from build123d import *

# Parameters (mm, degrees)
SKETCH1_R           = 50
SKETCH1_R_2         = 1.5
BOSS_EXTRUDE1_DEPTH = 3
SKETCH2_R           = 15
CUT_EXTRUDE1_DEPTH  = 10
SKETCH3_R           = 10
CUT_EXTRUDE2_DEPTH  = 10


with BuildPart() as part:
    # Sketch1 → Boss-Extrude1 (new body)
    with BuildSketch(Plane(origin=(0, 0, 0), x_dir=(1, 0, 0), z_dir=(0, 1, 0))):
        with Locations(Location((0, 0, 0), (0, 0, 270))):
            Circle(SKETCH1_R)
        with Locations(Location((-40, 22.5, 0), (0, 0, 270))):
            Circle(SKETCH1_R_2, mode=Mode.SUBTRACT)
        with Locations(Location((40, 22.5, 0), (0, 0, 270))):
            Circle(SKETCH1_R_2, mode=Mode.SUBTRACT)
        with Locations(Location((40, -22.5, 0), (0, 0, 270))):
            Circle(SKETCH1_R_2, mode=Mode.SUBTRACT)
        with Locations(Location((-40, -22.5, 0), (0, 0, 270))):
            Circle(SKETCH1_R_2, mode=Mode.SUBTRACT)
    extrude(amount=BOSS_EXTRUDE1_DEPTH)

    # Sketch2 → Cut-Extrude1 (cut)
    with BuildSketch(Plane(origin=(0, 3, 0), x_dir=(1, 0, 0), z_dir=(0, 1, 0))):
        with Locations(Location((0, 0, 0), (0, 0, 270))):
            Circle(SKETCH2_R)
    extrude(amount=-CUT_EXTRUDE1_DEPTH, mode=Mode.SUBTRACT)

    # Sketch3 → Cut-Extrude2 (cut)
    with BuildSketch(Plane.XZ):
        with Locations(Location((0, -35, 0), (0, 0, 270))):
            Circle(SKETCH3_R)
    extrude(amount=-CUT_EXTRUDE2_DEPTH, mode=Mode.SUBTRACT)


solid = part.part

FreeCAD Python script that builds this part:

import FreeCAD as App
import Part
import Sketcher

V = App.Vector
Q = App.Units.Quantity

doc = App.newDocument("Part")
params = doc.addObject("Spreadsheet::Sheet", "Params")
for row, (alias, value) in enumerate([
    ("sketch1_diameter", "100 mm"),
    ("sketch1_diameter2", "3 mm"),
    ("pad1_length", "3 mm"),
    ("sketch2_diameter", "30 mm"),
    ("pocket1_length", "10 mm"),
    ("sketch3_diameter", "20 mm"),
    ("pocket2_length", "10 mm"),
], start=1):
    params.set(f"A{row}", alias)
    params.set(f"B{row}", "=" + value)
    params.setAlias(f"B{row}", alias)

body = doc.addObject("PartDesign::Body", "Body")

# Sketch on XZ plane
sketch1 = body.newObject("Sketcher::SketchObject", "Sketch")
sketch1.AttachmentSupport = (doc.getObject("XZ_Plane"), [""])
sketch1.MapMode = "FlatFace"
sketch1.addGeometry(Part.Circle(V(0, 0, 0), V(0, 0, 1), 50), False)
sketch1.addGeometry(Part.Circle(V(-40, -22.5, 0), V(0, 0, 1), 1.5), False)
sketch1.addGeometry(Part.Circle(V(-40, 22.5, 0), V(0, 0, 1), 1.5), False)
sketch1.addGeometry(Part.Circle(V(40, -22.5, 0), V(0, 0, 1), 1.5), False)
sketch1.addGeometry(Part.Circle(V(40, 22.5, 0), V(0, 0, 1), 1.5), False)
sketch1.addConstraint(Sketcher.Constraint("Coincident", 0, 3, -1, 1))
sketch1.addConstraint(Sketcher.Constraint("Equal", 1, 2))
sketch1.addConstraint(Sketcher.Constraint("Equal", 2, 3))
sketch1.addConstraint(Sketcher.Constraint("Equal", 3, 4))
sketch1.addConstraint(Sketcher.Constraint("Symmetric", 2, 3, 3, 3, -1, 1))
sketch1.addConstraint(Sketcher.Constraint("Symmetric", 1, 3, 4, 3, -1, 1))
sketch1.addConstraint(Sketcher.Constraint("Symmetric", 1, 3, 3, 3, -2))
sketch1.addConstraint(Sketcher.Constraint("Diameter", 0, Q("100 mm")))
sketch1.addConstraint(Sketcher.Constraint("Diameter", 1, Q("3 mm")))
sketch1.addConstraint(Sketcher.Constraint("DistanceX", 1, 3, -1, 1, Q("40 mm")))
sketch1.addConstraint(Sketcher.Constraint("DistanceY", 1, 3, 2, 3, Q("45 mm")))
sketch1.setExpression("Constraints[7]", "Params.sketch1_diameter")
sketch1.setExpression("Constraints[8]", "Params.sketch1_diameter2")
pad1 = body.newObject("PartDesign::Pad", "Pad")
pad1.Profile = sketch1
pad1.setExpression("Length", "Params.pad1_length")
pad1.Reversed = True

# Sketch on XZ plane
sketch2 = body.newObject("Sketcher::SketchObject", "Sketch001")
sketch2.AttachmentSupport = (doc.getObject("XZ_Plane"), [""])
sketch2.MapMode = "FlatFace"
sketch2.AttachmentOffset = App.Placement(V(0, 0, -3), App.Rotation())
sketch2.addGeometry(Part.Circle(V(0, 0, 0), V(0, 0, 1), 15), False)
sketch2.addConstraint(Sketcher.Constraint("Coincident", 0, 3, -1, 1))
sketch2.addConstraint(Sketcher.Constraint("Diameter", 0, Q("30 mm")))
sketch2.setExpression("Constraints[1]", "Params.sketch2_diameter")
pocket1 = body.newObject("PartDesign::Pocket", "Pocket")
pocket1.Profile = sketch2
pocket1.setExpression("Length", "Params.pocket1_length")
pocket1.Reversed = True

# Sketch on XZ plane
sketch3 = body.newObject("Sketcher::SketchObject", "Sketch002")
sketch3.AttachmentSupport = (doc.getObject("XZ_Plane"), [""])
sketch3.MapMode = "FlatFace"
sketch3.addGeometry(Part.Circle(V(0, -35, 0), V(0, 0, 1), 10), False)
sketch3.addConstraint(Sketcher.Constraint("PointOnObject", 0, 3, -2))
sketch3.addConstraint(Sketcher.Constraint("Diameter", 0, Q("20 mm")))
sketch3.addConstraint(Sketcher.Constraint("DistanceY", 0, 3, -1, 1, Q("35 mm")))
sketch3.setExpression("Constraints[1]", "Params.sketch3_diameter")
pocket2 = body.newObject("PartDesign::Pocket", "Pocket001")
pocket2.Profile = sketch3
pocket2.setExpression("Length", "Params.pocket2_length")

doc.recompute()
